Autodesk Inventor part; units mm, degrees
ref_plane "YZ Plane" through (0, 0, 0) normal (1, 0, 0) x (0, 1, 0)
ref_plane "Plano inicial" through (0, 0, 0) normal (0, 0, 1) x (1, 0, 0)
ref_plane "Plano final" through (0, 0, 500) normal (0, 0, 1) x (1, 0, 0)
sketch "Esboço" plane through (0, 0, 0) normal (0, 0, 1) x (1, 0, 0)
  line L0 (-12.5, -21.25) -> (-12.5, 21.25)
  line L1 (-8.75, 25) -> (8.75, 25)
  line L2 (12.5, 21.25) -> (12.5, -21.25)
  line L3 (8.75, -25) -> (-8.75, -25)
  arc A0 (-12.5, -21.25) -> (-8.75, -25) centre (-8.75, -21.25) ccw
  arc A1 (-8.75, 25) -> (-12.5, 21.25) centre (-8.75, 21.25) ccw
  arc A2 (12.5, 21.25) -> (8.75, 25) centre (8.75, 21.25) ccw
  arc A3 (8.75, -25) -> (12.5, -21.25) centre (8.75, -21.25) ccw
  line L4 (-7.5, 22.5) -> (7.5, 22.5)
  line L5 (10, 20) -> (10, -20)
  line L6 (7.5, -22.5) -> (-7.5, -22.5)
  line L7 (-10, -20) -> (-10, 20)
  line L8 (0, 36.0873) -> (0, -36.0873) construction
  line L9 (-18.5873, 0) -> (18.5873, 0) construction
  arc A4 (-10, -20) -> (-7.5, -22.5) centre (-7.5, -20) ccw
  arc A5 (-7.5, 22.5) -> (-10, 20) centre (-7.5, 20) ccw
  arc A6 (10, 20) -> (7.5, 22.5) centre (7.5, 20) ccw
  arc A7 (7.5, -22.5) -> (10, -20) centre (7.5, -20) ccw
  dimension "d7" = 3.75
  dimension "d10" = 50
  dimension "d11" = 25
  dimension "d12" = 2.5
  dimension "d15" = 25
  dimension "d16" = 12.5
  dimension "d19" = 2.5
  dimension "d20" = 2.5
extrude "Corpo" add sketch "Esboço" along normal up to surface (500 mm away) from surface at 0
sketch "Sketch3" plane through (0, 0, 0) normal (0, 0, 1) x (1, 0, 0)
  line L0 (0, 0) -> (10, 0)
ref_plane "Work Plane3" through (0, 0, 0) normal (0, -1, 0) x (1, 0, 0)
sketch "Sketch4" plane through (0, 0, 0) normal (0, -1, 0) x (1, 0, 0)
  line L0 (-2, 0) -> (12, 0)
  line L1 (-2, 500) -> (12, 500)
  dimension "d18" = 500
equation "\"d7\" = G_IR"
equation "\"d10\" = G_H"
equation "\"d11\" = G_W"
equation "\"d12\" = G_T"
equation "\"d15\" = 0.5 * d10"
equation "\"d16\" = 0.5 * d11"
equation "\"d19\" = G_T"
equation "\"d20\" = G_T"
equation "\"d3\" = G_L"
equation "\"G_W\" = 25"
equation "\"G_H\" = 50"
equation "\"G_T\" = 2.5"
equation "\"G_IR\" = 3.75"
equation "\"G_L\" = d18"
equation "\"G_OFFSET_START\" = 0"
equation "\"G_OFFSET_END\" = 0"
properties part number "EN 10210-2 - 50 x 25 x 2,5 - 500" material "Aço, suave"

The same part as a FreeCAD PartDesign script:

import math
import FreeCAD as App
import Part
import Sketcher

V = App.Vector
Q = App.Units.Quantity

doc = App.newDocument("Part")
params = doc.addObject("Spreadsheet::Sheet", "Params")
for row, (alias, value) in enumerate([
    ("sketch1_radius", "2.5 mm"),
    ("sketch1_radius2", "3.75 mm"),
    ("pad1_length", "500 mm"),
], start=1):
    params.set(f"A{row}", alias)
    params.set(f"B{row}", "=" + value)
    params.setAlias(f"B{row}", alias)

body = doc.addObject("PartDesign::Body", "Body")

# Sketch on XY plane
sketch1 = body.newObject("Sketcher::SketchObject", "Sketch")
sketch1.AttachmentSupport = (doc.getObject("XY_Plane"), [""])
sketch1.MapMode = "FlatFace"
sketch1.addGeometry(Part.LineSegment(V(-12.5, 21.25, 0), V(-12.5, -21.25, 0)), False)
sketch1.addGeometry(Part.ArcOfCircle(Part.Circle(V(-8.75, -21.25, 0), V(0, 0, 1), 3.75), math.radians(180), math.radians(270)), False)
sketch1.addGeometry(Part.LineSegment(V(-8.75, -25, 0), V(8.75, -25, 0)), False)
sketch1.addGeometry(Part.ArcOfCircle(Part.Circle(V(8.75, -21.25, 0), V(0, 0, 1), 3.75), math.radians(-90), math.radians(0)), False)
sketch1.addGeometry(Part.LineSegment(V(12.5, -21.25, 0), V(12.5, 21.25, 0)), False)
sketch1.addGeometry(Part.ArcOfCircle(Part.Circle(V(8.75, 21.25, 0), V(0, 0, 1), 3.75), math.radians(0), math.radians(90)), False)
sketch1.addGeometry(Part.LineSegment(V(8.75, 25, 0), V(-8.75, 25, 0)), False)
sketch1.addGeometry(Part.ArcOfCircle(Part.Circle(V(-8.75, 21.25, 0), V(0, 0, 1), 3.75), math.radians(90), math.radians(180)), False)
sketch1.addGeometry(Part.ArcOfCircle(Part.Circle(V(-7.5, 20, 0), V(0, 0, 1), 2.5), math.radians(90), math.radians(180)), False)
sketch1.addGeometry(Part.LineSegment(V(-7.5, 22.5, 0), V(7.5, 22.5, 0)), False)
sketch1.addGeometry(Part.ArcOfCircle(Part.Circle(V(7.5, 20, 0), V(0, 0, 1), 2.5), math.radians(0), math.radians(90)), False)
sketch1.addGeometry(Part.LineSegment(V(10, 20, 0), V(10, -20, 0)), False)
sketch1.addGeometry(Part.ArcOfCircle(Part.Circle(V(7.5, -20, 0), V(0, 0, 1), 2.5), math.radians(-90), math.radians(0)), False)
sketch1.addGeometry(Part.LineSegment(V(7.5, -22.5, 0), V(-7.5, -22.5, 0)), False)
sketch1.addGeometry(Part.ArcOfCircle(Part.Circle(V(-7.5, -20, 0), V(0, 0, 1), 2.5), math.radians(180), math.radians(270)), False)
sketch1.addGeometry(Part.LineSegment(V(-10, -20, 0), V(-10, 20, 0)), False)
sketch1.addConstraint(Sketcher.Constraint("Tangent", 0, 2, 1, 1))
sketch1.addConstraint(Sketcher.Constraint("Tangent", 1, 2, 2, 1))
sketch1.addConstraint(Sketcher.Constraint("Tangent", 2, 2, 3, 1))
sketch1.addConstraint(Sketcher.Constraint("Tangent", 3, 2, 4, 1))
sketch1.addConstraint(Sketcher.Constraint("Tangent", 4, 2, 5, 1))
sketch1.addConstraint(Sketcher.Constraint("Tangent", 5, 2, 6, 1))
sketch1.addConstraint(Sketcher.Constraint("Tangent", 6, 2, 7, 1))
sketch1.addConstraint(Sketcher.Constraint("Tangent", 7, 2, 0, 1))
sketch1.addConstraint(Sketcher.Constraint("Tangent", 8, 1, 9, 1))
sketch1.addConstraint(Sketcher.Constraint("Tangent", 9, 2, 10, 2))
sketch1.addConstraint(Sketcher.Constraint("Tangent", 10, 1, 11, 1))
sketch1.addConstraint(Sketcher.Constraint("Tangent", 11, 2, 12, 2))
sketch1.addConstraint(Sketcher.Constraint("Tangent", 12, 1, 13, 1))
sketch1.addConstraint(Sketcher.Constraint("Tangent", 13, 2, 14, 2))
sketch1.addConstraint(Sketcher.Constraint("Tangent", 14, 1, 15, 1))
sketch1.addConstraint(Sketcher.Constraint("Tangent", 15, 2, 8, 2))
sketch1.addConstraint(Sketcher.Constraint("Vertical", 0))
sketch1.addConstraint(Sketcher.Constraint("Horizontal", 2))
sketch1.addConstraint(Sketcher.Constraint("Vertical", 4))
sketch1.addConstraint(Sketcher.Constraint("Horizontal", 6))
sketch1.addConstraint(Sketcher.Constraint("Horizontal", 9))
sketch1.addConstraint(Sketcher.Constraint("Vertical", 11))
sketch1.addConstraint(Sketcher.Constraint("Horizontal", 13))
sketch1.addConstraint(Sketcher.Constraint("Vertical", 15))
sketch1.addConstraint(Sketcher.Constraint("Equal", 1, 3))
sketch1.addConstraint(Sketcher.Constraint("Equal", 3, 5))
sketch1.addConstraint(Sketcher.Constraint("Equal", 5, 7))
sketch1.addConstraint(Sketcher.Constraint("Equal", 8, 10))
sketch1.addConstraint(Sketcher.Constraint("Equal", 10, 12))
sketch1.addConstraint(Sketcher.Constraint("Equal", 12, 14))
sketch1.addConstraint(Sketcher.Constraint("Symmetric", 1, 3, 5, 3, -1, 1))
sketch1.addConstraint(Sketcher.Constraint("Symmetric", 8, 3, 12, 3, -1, 1))
sketch1.addConstraint(Sketcher.Constraint("Radius", 8, Q("2.5 mm")))
sketch1.addConstraint(Sketcher.Constraint("Radius", 1, Q("3.75 mm")))
sketch1.addConstraint(Sketcher.Constraint("DistanceY", 1, 2, -1, 1, Q("25 mm")))
sketch1.addConstraint(Sketcher.Constraint("DistanceX", 0, 2, -1, 1, Q("12.5 mm")))
sketch1.addConstraint(Sketcher.Constraint("DistanceY", 8, 1, 6, 2, Q("2.5 mm")))
sketch1.addConstraint(Sketcher.Constraint("DistanceX", 10, 1, 4, 2, Q("2.5 mm")))
sketch1.setExpression("Constraints[32]", "Params.sketch1_radius")
sketch1.setExpression("Constraints[33]", "Params.sketch1_radius2")
pad1 = body.newObject("PartDesign::Pad", "Pad")
pad1.Profile = sketch1
pad1.setExpression("Length", "Params.pad1_length")

doc.recompute()
